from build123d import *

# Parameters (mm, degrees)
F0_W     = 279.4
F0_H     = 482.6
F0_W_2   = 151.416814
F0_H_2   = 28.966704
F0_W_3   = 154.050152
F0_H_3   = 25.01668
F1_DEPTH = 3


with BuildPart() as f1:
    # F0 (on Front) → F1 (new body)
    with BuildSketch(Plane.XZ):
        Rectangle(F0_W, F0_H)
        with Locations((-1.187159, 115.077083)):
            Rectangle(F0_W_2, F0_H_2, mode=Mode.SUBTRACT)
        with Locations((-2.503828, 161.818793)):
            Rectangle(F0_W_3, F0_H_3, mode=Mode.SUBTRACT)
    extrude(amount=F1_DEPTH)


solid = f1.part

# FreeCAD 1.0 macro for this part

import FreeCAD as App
import Part
import Sketcher
Q = App.Units.Quantity

doc = App.newDocument("Part")
body = doc.addObject("PartDesign::Body", "Body")

sketch1 = body.newObject("Sketcher::SketchObject", "Sketch")
sketch1.AttachmentSupport = (doc.getObject("XZ_Plane"), [""])
sketch1.MapMode = "FlatFace"
sketch1.addGeometry(Part.LineSegment(App.Vector(-140, 241, 0), App.Vector(-140, -241, 0)), False)
sketch1.addGeometry(Part.LineSegment(App.Vector(-140, -241, 0), App.Vector(140, -241, 0)), False)
sketch1.addGeometry(Part.LineSegment(App.Vector(140, -241, 0), App.Vector(140, 241, 0)), False)
sketch1.addGeometry(Part.LineSegment(App.Vector(140, 241, 0), App.Vector(-140, 241, 0)), False)
sketch1.addGeometry(Part.LineSegment(App.Vector(75, 101, 0), App.Vector(-77, 101, 0)), False)
sketch1.addGeometry(Part.LineSegment(App.Vector(-77, 101, 0), App.Vector(-77, 130, 0)), False)
sketch1.addGeometry(Part.LineSegment(App.Vector(-77, 130, 0), App.Vector(75, 130, 0)), False)
sketch1.addGeometry(Part.LineSegment(App.Vector(75, 130, 0), App.Vector(75, 101, 0)), False)
sketch1.addGeometry(Part.LineSegment(App.Vector(75, 149, 0), App.Vector(-80, 149, 0)), False)
sketch1.addGeometry(Part.LineSegment(App.Vector(-80, 149, 0), App.Vector(-80, 174, 0)), False)
sketch1.addGeometry(Part.LineSegment(App.Vector(-80, 174, 0), App.Vector(75, 174, 0)), False)
sketch1.addGeometry(Part.LineSegment(App.Vector(75, 174, 0), App.Vector(75, 149, 0)), False)
sketch1.addConstraint(Sketcher.Constraint("Coincident", 0, 2, 1, 1))
sketch1.addConstraint(Sketcher.Constraint("Coincident", 1, 2, 2, 1))
sketch1.addConstraint(Sketcher.Constraint("Coincident", 2, 2, 3, 1))
sketch1.addConstraint(Sketcher.Constraint("Coincident", 3, 2, 0, 1))
sketch1.addConstraint(Sketcher.Constraint("Coincident", 4, 2, 5, 1))
sketch1.addConstraint(Sketcher.Constraint("Coincident", 5, 2, 6, 1))
sketch1.addConstraint(Sketcher.Constraint("Coincident", 6, 2, 7, 1))
sketch1.addConstraint(Sketcher.Constraint("Coincident", 7, 2, 4, 1))
sketch1.addConstraint(Sketcher.Constraint("Coincident", 8, 2, 9, 1))
sketch1.addConstraint(Sketcher.Constraint("Coincident", 9, 2, 10, 1))
sketch1.addConstraint(Sketcher.Constraint("Coincident", 10, 2, 11, 1))
sketch1.addConstraint(Sketcher.Constraint("Coincident", 11, 2, 8, 1))
sketch1.addConstraint(Sketcher.Constraint("Vertical", 0))
sketch1.addConstraint(Sketcher.Constraint("Horizontal", 1))
sketch1.addConstraint(Sketcher.Constraint("Vertical", 2))
sketch1.addConstraint(Sketcher.Constraint("Horizontal", 3))
sketch1.addConstraint(Sketcher.Constraint("Horizontal", 4))
sketch1.addConstraint(Sketcher.Constraint("Vertical", 5))
sketch1.addConstraint(Sketcher.Constraint("Horizontal", 6))
sketch1.addConstraint(Sketcher.Constraint("Vertical", 7))
sketch1.addConstraint(Sketcher.Constraint("Horizontal", 8))
sketch1.addConstraint(Sketcher.Constraint("Vertical", 9))
sketch1.addConstraint(Sketcher.Constraint("Horizontal", 10))
sketch1.addConstraint(Sketcher.Constraint("Vertical", 11))
sketch1.addConstraint(Sketcher.Constraint("Symmetric", 0, 2, 2, 2, -1, 1))
sketch1.addConstraint(Sketcher.Constraint("Vertical", 7, 2, 10, 2))
sketch1.addConstraint(Sketcher.Constraint("DistanceX", 1, 1, 1, 2, Q("11 in")))
sketch1.addConstraint(Sketcher.Constraint("DistanceY", 0, 2, 0, 1, Q("19 in")))
sketch1.addConstraint(Sketcher.Constraint("DistanceX", 8, 2, 8, 1, Q("154.050152 mm")))
sketch1.addConstraint(Sketcher.Constraint("DistanceY", 9, 1, 9, 2, Q("25.01668 mm")))
sketch1.addConstraint(Sketcher.Constraint("DistanceY", 4, 2, 9, 2, Q("73.733402 mm")))
sketch1.addConstraint(Sketcher.Constraint("DistanceX", 4, 2, 4, 1, Q("151.416814 mm")))
sketch1.addConstraint(Sketcher.Constraint("DistanceY", 5, 1, 5, 2, Q("28.966704 mm")))
sketch1.addConstraint(Sketcher.Constraint("DistanceY", -1, 1, 4, 2, Q("100.593731 mm")))
sketch1.addConstraint(Sketcher.Constraint("DistanceX", -1, 1, 6, 2, Q("74.521248 mm")))
pad1 = body.newObject("PartDesign::Pad", "Pad")
pad1.Profile = sketch1
pad1.Length = 3

doc.recompute()
